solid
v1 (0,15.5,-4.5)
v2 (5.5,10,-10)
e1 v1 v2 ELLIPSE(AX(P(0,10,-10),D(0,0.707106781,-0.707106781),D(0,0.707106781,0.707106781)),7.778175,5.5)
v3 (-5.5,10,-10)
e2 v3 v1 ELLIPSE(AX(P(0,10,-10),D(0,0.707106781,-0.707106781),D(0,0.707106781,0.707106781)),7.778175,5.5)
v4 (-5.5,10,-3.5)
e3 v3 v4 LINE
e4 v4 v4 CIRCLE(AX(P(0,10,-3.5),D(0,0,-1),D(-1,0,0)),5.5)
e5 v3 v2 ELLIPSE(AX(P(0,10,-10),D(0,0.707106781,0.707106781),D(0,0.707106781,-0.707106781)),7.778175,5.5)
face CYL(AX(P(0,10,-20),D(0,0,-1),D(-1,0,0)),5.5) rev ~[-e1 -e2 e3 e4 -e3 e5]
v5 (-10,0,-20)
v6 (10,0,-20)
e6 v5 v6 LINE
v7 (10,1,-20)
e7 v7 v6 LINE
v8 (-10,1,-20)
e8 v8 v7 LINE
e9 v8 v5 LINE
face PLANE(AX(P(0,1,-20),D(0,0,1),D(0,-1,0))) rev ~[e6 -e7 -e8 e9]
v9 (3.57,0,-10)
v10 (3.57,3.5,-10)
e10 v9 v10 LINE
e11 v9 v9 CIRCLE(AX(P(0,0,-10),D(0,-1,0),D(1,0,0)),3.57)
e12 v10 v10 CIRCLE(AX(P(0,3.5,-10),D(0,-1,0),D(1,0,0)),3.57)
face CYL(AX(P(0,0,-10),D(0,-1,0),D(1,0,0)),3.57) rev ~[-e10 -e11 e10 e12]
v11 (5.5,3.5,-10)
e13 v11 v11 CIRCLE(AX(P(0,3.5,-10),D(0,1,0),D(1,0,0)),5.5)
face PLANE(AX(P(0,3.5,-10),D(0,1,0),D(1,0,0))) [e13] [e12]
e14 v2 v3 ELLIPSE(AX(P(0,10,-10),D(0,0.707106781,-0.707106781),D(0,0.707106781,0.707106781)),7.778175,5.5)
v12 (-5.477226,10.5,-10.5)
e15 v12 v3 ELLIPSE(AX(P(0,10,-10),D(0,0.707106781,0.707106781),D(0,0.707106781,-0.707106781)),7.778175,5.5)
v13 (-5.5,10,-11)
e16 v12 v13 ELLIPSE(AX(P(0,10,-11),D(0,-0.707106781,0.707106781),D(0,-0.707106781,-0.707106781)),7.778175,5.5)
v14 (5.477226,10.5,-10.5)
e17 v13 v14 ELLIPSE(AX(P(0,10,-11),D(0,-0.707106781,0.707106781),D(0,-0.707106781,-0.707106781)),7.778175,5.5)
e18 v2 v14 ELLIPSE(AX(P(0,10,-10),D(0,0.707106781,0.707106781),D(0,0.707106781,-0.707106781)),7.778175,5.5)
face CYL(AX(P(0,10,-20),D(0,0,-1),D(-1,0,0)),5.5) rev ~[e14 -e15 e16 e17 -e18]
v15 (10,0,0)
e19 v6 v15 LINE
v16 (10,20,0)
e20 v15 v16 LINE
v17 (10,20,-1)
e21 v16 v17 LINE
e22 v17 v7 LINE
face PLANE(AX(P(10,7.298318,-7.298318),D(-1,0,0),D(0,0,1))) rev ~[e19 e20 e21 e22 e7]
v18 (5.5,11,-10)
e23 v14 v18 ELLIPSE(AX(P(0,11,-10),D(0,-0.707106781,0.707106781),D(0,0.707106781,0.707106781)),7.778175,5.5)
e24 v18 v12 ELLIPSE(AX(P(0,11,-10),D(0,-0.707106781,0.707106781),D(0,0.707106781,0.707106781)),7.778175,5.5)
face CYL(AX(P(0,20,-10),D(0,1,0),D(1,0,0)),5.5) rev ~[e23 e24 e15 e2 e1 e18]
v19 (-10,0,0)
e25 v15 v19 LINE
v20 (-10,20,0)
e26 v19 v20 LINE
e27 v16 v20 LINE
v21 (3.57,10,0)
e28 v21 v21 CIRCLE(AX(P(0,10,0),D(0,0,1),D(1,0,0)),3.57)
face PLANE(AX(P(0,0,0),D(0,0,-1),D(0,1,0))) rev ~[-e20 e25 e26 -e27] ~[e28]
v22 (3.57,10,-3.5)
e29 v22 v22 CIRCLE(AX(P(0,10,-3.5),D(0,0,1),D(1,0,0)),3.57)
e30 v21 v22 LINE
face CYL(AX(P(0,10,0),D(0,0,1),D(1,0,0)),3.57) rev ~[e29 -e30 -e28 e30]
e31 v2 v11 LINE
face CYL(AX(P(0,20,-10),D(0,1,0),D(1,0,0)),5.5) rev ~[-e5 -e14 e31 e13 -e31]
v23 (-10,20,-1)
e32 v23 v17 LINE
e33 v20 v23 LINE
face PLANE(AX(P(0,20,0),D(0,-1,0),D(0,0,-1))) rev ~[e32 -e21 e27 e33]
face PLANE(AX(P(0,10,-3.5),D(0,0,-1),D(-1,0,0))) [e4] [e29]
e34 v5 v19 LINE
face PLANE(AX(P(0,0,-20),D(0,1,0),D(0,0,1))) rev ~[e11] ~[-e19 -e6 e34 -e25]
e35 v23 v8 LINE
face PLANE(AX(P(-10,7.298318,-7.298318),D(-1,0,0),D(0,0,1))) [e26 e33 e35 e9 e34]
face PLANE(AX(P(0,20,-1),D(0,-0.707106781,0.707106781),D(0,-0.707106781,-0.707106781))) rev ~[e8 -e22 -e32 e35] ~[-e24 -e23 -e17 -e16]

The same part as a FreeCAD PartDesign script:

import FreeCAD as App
import Part
import Sketcher
Q = App.Units.Quantity


def add_polygon(sketch, points):
    """Adds a closed chain of lines whose ends are joined by coincident constraints."""
    first, n = sketch.GeometryCount, len(points)
    for a, b in zip(points, points[1:] + points[:1]):
        sketch.addGeometry(Part.LineSegment(App.Vector(*a, 0), App.Vector(*b, 0)), False)
    for i in range(n):
        sketch.addConstraint(Sketcher.Constraint("Coincident", first + i, 2, first + (i + 1) % n, 1))

doc = App.newDocument("Part")
params = doc.addObject("Spreadsheet::Sheet", "Params")
for row, (alias, value) in enumerate([
    ("sketch1_width", "1 mm"),
    ("sketch1_width2", "20 mm"),
    ("pad1_length", "20 mm"),
    ("sketch2_diameter", "7.14 mm"),
    ("sketch3_diameter", "11 mm"),
    ("pocket2_length", "16.5 mm"),
    ("sketch4_diameter", "7.14 mm"),
    ("sketch5_diameter", "11 mm"),
    ("pocket4_length", "16.5 mm"),
], start=1):
    params.set(f"A{row}", alias)
    params.set(f"B{row}", "=" + value)
    params.setAlias(f"B{row}", alias)

body = doc.addObject("PartDesign::Body", "Body")

# Sketch on YZ plane
sketch1 = doc.addObject("Sketcher::SketchObject", "Sketch")
body.addObject(sketch1)
sketch1.AttachmentSupport = (doc.YZ_Plane, [""])
sketch1.MapMode = "FlatFace"
add_polygon(sketch1, [(0, 0), (0, -20), (1, -20), (20, -1), (20, 0)])  # lines 0-4
sketch1.addConstraint(Sketcher.Constraint("Vertical", 0))
sketch1.addConstraint(Sketcher.Constraint("Horizontal", 1))
sketch1.addConstraint(Sketcher.Constraint("Vertical", 3))
sketch1.addConstraint(Sketcher.Constraint("Horizontal", 4))
sketch1.addConstraint(Sketcher.Constraint("Coincident", 4, 2, -1, 1))
sketch1.addConstraint(Sketcher.Constraint("Equal", 4, 0))
sketch1.addConstraint(Sketcher.Constraint("Equal", 1, 3))
sketch1.addConstraint(Sketcher.Constraint("DistanceX", 1, 1, 1, 2, Q("1 mm")))
sketch1.addConstraint(Sketcher.Constraint("DistanceX", 4, 2, 4, 1, Q("20 mm")))
sketch1.setExpression("Constraints[12]", "Params.sketch1_width")
sketch1.setExpression("Constraints[13]", "Params.sketch1_width2")
pad1 = doc.addObject("PartDesign::Pad", "Pad")
body.addObject(pad1)
pad1.Profile = sketch1
pad1.setExpression("Length", "Params.pad1_length")
pad1.Midplane = True

# Sketch on XZ plane
sketch2 = doc.addObject("Sketcher::SketchObject", "Sketch001")
body.addObject(sketch2)
sketch2.AttachmentSupport = (doc.XZ_Plane, [""])
sketch2.MapMode = "FlatFace"
sketch2.addGeometry(Part.Circle(App.Vector(0, -10, 0), App.Vector(0, 0, 1), 3.6), False)
sketch2.addConstraint(Sketcher.Constraint("PointOnObject", 0, 3, -2))
sketch2.addConstraint(Sketcher.Constraint("Diameter", 0, Q("7.14 mm")))
sketch2.addConstraint(Sketcher.Constraint("DistanceY", 0, 3, -1, 1, Q("10 mm")))
sketch2.setExpression("Constraints[1]", "Params.sketch2_diameter")
pocket1 = doc.addObject("PartDesign::Pocket", "Pocket")
body.addObject(pocket1)
pocket1.Profile = sketch2
pocket1.Type = "ThroughAll"

# Sketch on XZ plane
sketch3 = doc.addObject("Sketcher::SketchObject", "Sketch002")
body.addObject(sketch3)
sketch3.AttachmentSupport = (doc.XZ_Plane, [""])
sketch3.MapMode = "FlatFace"
sketch3.AttachmentOffset = App.Placement(App.Vector(0, 0, -20), App.Rotation())
sketch3.addGeometry(Part.Circle(App.Vector(0, -10, 0), App.Vector(0, 0, 1), 6), False)
sketch3.addConstraint(Sketcher.Constraint("PointOnObject", 0, 3, -2))
sketch3.addConstraint(Sketcher.Constraint("Diameter", 0, Q("11 mm")))
sketch3.addConstraint(Sketcher.Constraint("DistanceY", 0, 3, -1, 1, Q("10 mm")))
sketch3.setExpression("Constraints[1]", "Params.sketch3_diameter")
pocket2 = doc.addObject("PartDesign::Pocket", "Pocket001")
body.addObject(pocket2)
pocket2.Profile = sketch3
pocket2.setExpression("Length", "Params.pocket2_length")
pocket2.Reversed = True

# Sketch on XY plane
sketch4 = doc.addObject("Sketcher::SketchObject", "Sketch003")
body.addObject(sketch4)
sketch4.AttachmentSupport = (doc.XY_Plane, [""])
sketch4.MapMode = "FlatFace"
sketch4.addGeometry(Part.Circle(App.Vector(0, 10, 0), App.Vector(0, 0, 1), 3.6), False)
sketch4.addConstraint(Sketcher.Constraint("PointOnObject", 0, 3, -2))
sketch4.addConstraint(Sketcher.Constraint("Diameter", 0, Q("7.14 mm")))
sketch4.addConstraint(Sketcher.Constraint("DistanceY", -1, 1, 0, 3, Q("10 mm")))
sketch4.setExpression("Constraints[1]", "Params.sketch4_diameter")
pocket3 = doc.addObject("PartDesign::Pocket", "Pocket002")
body.addObject(pocket3)
pocket3.Profile = sketch4
pocket3.Type = "ThroughAll"

# Sketch on XY plane
sketch5 = doc.addObject("Sketcher::SketchObject", "Sketch004")
body.addObject(sketch5)
sketch5.AttachmentSupport = (doc.XY_Plane, [""])
sketch5.MapMode = "FlatFace"
sketch5.AttachmentOffset = App.Placement(App.Vector(0, 0, -20), App.Rotation())
sketch5.addGeometry(Part.Circle(App.Vector(0, 10, 0), App.Vector(0, 0, 1), 6), False)
sketch5.addConstraint(Sketcher.Constraint("PointOnObject", 0, 3, -2))
sketch5.addConstraint(Sketcher.Constraint("Diameter", 0, Q("11 mm")))
sketch5.addConstraint(Sketcher.Constraint("DistanceY", -1, 1, 0, 3, Q("10 mm")))
sketch5.setExpression("Constraints[1]", "Params.sketch5_diameter")
pocket4 = doc.addObject("PartDesign::Pocket", "Pocket003")
body.addObject(pocket4)
pocket4.Profile = sketch5
pocket4.setExpression("Length", "Params.pocket4_length")
pocket4.Reversed = True

doc.recompute()
